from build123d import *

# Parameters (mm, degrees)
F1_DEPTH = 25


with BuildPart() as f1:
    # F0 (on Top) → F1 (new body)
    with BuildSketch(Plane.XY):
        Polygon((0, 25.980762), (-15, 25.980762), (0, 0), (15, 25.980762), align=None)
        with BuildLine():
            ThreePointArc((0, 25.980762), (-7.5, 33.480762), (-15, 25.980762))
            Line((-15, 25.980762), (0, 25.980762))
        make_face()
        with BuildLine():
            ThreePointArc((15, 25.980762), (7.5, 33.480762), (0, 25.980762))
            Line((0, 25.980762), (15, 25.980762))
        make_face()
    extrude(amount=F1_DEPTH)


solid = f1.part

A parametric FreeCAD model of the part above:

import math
import FreeCAD as App
import Part
import Sketcher
from FreeCAD import Vector
Q = App.Units.Quantity

doc = App.newDocument("Part")
body = doc.addObject("PartDesign::Body", "Body")

sketch1 = body.newObject("Sketcher::SketchObject", "Sketch")
sketch1.AttachmentSupport = (doc.getObject("XY_Plane"), [""])
sketch1.MapMode = "FlatFace"
sketch1.addGeometry([
    Part.LineSegment(Vector(-15, 25.980762, 0), Vector(0, 0, 0)),
    Part.LineSegment(Vector(0, 0, 0), Vector(15, 25.980762, 0)),
    Part.ArcOfCircle(Part.Circle(Vector(7.5, 25.980762, 0), Vector(0, 0, 1), 7.5), math.radians(0), math.radians(180)),
    Part.ArcOfCircle(Part.Circle(Vector(-7.5, 25.980762, 0), Vector(0, 0, 1), 7.5), math.radians(0), math.radians(180)),
], False)
sketch1.addConstraint([
    Sketcher.Constraint("Coincident", 0, 2, 1, 1),
    Sketcher.Constraint("Coincident", 1, 2, 2, 1),
    Sketcher.Constraint("Tangent", 2, 2, 3, 1),
    Sketcher.Constraint("Coincident", 3, 2, 0, 1),
    Sketcher.Constraint("Coincident", 0, 2, -1, 1),
    Sketcher.Constraint("Equal", 2, 3),
    Sketcher.Constraint("Symmetric", 2, 3, 3, 3, -2),
    Sketcher.Constraint("Horizontal", 3, 3, 1, 2),
    Sketcher.Constraint("Horizontal", 2, 2, 3, 2),
    Sketcher.Constraint("Radius", 2, Q("7.5 mm")),
    Sketcher.Constraint("Angle", 0, Q("-60 deg")),
])
pad1 = body.newObject("PartDesign::Pad", "Pad")
pad1.Profile = sketch1
pad1.Length = 25

doc.recompute()
